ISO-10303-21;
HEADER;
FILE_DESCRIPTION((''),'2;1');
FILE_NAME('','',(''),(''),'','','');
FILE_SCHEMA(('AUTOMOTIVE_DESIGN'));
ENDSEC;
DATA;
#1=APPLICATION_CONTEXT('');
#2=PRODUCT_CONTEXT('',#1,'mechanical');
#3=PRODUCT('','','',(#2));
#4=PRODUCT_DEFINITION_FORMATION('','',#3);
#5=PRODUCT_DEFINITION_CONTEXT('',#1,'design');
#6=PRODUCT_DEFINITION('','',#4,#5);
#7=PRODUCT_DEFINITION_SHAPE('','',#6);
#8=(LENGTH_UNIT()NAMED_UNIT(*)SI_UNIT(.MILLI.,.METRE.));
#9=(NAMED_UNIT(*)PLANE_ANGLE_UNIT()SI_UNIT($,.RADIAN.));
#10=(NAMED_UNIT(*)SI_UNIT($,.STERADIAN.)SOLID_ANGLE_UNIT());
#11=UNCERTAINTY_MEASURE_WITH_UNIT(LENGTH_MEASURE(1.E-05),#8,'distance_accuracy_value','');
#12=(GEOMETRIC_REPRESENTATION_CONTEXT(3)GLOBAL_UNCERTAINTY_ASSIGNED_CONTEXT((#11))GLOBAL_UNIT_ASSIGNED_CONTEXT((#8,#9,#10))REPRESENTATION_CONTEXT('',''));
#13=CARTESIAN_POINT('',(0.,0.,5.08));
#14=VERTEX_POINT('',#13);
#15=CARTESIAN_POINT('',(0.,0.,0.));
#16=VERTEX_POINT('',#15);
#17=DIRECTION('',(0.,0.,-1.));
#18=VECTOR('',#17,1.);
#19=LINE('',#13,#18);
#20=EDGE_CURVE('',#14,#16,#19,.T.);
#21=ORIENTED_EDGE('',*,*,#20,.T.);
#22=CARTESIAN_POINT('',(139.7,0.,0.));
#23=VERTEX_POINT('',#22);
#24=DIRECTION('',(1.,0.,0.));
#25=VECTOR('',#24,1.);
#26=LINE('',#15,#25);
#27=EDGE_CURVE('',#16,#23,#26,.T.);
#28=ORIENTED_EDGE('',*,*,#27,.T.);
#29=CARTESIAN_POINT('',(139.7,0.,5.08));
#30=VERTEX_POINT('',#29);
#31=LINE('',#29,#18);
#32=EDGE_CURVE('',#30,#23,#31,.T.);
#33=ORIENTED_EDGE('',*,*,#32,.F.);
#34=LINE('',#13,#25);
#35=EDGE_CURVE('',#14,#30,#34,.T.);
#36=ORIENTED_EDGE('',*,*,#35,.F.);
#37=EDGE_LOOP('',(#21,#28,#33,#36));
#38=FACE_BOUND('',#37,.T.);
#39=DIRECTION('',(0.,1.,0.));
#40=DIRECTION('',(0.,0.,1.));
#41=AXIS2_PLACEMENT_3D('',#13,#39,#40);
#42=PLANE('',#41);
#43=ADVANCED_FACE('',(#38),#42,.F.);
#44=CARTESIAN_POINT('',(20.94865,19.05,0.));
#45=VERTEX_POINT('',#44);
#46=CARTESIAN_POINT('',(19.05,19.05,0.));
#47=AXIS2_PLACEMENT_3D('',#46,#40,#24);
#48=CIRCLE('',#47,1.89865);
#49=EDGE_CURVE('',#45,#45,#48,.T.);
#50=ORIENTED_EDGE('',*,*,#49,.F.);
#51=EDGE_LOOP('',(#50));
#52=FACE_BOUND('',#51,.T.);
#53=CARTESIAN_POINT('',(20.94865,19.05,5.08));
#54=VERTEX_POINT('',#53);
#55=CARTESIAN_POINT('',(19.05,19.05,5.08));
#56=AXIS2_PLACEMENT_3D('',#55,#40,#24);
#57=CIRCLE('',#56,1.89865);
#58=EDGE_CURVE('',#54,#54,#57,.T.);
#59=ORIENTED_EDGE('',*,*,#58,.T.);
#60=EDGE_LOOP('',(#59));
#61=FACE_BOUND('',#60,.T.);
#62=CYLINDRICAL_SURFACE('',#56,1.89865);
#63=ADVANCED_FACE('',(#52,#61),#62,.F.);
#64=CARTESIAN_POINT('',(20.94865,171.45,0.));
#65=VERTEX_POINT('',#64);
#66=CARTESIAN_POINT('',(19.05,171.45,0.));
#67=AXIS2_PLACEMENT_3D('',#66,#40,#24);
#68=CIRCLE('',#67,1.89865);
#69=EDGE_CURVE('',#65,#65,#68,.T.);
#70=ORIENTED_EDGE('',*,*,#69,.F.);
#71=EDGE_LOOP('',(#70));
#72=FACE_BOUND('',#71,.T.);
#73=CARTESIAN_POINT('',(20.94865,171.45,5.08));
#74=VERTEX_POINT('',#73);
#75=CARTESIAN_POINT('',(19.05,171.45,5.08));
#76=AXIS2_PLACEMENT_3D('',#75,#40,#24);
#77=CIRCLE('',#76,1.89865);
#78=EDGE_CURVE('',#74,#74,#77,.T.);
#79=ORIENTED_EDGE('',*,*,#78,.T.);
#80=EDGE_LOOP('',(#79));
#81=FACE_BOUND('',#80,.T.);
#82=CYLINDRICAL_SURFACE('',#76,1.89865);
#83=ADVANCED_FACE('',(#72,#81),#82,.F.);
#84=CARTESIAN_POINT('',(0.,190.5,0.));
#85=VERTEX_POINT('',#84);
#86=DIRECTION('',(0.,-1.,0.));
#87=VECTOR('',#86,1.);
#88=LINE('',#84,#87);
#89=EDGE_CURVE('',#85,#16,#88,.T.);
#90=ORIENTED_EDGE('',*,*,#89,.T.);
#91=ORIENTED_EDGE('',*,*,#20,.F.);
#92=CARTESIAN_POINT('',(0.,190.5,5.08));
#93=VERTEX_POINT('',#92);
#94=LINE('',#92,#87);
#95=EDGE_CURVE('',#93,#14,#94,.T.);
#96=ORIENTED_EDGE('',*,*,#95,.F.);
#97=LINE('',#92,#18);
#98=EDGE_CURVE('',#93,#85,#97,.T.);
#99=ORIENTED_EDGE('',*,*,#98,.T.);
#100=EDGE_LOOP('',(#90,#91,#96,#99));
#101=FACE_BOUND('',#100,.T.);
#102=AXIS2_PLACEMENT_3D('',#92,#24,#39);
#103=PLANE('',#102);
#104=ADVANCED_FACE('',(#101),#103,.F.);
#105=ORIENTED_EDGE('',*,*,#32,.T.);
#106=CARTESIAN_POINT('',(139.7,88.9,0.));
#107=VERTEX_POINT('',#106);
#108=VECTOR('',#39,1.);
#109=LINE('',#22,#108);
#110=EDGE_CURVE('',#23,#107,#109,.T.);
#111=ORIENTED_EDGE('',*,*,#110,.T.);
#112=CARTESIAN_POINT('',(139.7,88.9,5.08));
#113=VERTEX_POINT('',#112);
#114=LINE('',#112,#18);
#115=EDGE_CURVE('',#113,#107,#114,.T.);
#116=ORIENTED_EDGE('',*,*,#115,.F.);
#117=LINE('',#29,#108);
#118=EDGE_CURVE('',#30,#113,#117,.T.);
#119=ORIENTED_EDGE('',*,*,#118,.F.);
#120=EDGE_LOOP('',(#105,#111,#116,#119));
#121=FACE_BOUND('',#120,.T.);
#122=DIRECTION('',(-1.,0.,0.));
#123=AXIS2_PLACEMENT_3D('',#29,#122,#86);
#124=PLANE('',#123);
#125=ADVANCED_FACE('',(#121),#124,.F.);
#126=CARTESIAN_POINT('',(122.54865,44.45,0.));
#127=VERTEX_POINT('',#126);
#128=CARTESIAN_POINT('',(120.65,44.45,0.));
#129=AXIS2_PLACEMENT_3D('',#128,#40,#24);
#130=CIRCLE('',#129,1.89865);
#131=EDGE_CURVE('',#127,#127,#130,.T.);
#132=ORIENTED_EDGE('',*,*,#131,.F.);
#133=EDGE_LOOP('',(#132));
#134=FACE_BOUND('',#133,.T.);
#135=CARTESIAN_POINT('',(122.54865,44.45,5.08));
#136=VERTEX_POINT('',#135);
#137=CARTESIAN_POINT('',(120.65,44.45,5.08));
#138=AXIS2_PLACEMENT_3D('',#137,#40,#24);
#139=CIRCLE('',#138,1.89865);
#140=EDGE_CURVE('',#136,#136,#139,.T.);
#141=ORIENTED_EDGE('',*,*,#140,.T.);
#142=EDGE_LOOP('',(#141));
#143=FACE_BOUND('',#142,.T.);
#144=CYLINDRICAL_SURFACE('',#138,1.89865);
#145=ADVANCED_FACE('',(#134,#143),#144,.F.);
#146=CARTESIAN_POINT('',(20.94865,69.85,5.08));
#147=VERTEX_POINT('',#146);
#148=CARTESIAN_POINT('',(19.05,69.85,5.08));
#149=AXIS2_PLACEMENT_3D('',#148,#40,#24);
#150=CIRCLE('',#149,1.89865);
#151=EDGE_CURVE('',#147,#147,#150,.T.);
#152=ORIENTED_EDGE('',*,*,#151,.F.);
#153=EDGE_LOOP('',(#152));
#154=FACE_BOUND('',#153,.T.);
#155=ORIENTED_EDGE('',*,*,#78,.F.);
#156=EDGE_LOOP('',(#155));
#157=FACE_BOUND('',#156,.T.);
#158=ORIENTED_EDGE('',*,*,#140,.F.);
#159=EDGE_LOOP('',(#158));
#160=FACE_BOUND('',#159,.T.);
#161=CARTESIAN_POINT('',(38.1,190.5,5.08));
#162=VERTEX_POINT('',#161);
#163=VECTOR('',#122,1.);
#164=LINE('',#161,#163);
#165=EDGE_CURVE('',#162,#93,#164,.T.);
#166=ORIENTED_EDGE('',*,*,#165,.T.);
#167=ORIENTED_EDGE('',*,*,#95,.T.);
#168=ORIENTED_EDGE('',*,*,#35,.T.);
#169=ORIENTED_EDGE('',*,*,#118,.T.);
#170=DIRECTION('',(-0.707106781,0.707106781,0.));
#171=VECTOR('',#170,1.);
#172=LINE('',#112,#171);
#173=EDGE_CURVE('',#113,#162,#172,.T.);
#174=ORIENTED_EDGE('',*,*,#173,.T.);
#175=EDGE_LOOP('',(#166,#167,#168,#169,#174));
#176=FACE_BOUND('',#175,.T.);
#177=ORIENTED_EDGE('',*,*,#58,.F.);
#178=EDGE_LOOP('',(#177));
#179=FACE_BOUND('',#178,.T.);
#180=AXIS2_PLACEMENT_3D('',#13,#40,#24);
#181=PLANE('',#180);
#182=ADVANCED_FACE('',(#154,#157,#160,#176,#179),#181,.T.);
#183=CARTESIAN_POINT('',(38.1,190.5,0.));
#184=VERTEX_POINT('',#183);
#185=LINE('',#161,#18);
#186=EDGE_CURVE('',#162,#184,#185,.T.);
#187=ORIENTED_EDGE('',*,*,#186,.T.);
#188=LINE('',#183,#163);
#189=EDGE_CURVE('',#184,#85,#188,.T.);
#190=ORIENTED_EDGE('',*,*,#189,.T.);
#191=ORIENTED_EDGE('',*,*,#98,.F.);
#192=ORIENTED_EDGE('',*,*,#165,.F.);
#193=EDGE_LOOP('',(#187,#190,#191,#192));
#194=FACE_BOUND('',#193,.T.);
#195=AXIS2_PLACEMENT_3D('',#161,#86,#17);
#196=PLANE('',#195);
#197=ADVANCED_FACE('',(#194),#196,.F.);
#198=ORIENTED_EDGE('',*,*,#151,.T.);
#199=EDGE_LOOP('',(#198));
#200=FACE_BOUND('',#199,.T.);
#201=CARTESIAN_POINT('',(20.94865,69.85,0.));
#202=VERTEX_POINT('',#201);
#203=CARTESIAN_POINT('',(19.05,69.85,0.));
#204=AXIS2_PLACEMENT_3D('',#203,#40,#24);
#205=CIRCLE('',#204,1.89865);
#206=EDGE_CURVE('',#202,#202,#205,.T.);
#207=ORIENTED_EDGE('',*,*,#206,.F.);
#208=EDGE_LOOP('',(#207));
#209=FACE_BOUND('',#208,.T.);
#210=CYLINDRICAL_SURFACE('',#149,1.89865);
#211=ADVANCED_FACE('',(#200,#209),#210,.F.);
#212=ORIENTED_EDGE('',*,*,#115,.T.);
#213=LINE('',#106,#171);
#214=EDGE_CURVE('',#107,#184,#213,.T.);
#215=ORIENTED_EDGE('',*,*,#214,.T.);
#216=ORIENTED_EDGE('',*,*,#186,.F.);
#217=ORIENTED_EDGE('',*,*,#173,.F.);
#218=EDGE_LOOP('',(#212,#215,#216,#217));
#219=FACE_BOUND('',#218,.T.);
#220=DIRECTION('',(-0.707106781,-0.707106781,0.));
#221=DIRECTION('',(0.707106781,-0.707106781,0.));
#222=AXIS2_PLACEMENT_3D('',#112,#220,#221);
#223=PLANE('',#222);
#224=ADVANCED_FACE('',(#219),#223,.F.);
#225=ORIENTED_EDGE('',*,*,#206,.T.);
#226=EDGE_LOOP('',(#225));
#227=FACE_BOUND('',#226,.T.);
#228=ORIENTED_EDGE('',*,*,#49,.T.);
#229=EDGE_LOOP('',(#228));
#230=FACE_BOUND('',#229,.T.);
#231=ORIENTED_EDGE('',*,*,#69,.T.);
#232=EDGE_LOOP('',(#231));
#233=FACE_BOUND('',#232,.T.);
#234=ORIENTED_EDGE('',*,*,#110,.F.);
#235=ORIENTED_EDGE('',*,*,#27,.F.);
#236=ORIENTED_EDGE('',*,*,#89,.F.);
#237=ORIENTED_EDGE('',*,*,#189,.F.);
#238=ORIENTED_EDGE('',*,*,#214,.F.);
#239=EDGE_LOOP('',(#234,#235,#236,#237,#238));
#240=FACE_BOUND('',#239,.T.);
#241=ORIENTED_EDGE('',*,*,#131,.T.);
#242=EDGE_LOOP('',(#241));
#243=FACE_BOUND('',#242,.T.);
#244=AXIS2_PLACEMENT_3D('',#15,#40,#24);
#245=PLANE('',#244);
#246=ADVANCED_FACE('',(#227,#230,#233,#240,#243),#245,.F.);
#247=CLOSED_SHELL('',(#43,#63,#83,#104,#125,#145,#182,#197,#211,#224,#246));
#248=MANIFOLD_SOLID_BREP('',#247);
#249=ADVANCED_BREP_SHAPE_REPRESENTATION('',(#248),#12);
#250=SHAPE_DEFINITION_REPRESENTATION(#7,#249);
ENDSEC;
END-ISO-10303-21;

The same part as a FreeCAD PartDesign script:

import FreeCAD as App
import Part
import Sketcher
Q = App.Units.Quantity

doc = App.newDocument("Part")
body = doc.addObject("PartDesign::Body", "Body")

sketch1 = doc.addObject("Sketcher::SketchObject", "Sketch")
body.addObject(sketch1)
sketch1.AttachmentSupport = (doc.XY_Plane, [""])
sketch1.MapMode = "FlatFace"
sketch1.addGeometry([
    Part.LineSegment(App.Vector(0, 0, 0), App.Vector(140, 0, 0)),
    Part.LineSegment(App.Vector(140, 0, 0), App.Vector(140, 89, 0)),
    Part.LineSegment(App.Vector(140, 89, 0), App.Vector(38, 190, 0)),
    Part.LineSegment(App.Vector(38, 190, 0), App.Vector(0, 190, 0)),
    Part.LineSegment(App.Vector(0, 190, 0), App.Vector(0, 0, 0)),
], False)
sketch1.addConstraint([
    Sketcher.Constraint("Coincident", 0, 2, 1, 1),
    Sketcher.Constraint("Coincident", 1, 2, 2, 1),
    Sketcher.Constraint("Coincident", 2, 2, 3, 1),
    Sketcher.Constraint("Coincident", 3, 2, 4, 1),
    Sketcher.Constraint("Coincident", 4, 2, 0, 1),
    Sketcher.Constraint("Horizontal", 0),
    Sketcher.Constraint("Vertical", 1),
    Sketcher.Constraint("Horizontal", 3),
    Sketcher.Constraint("Vertical", 4),
    Sketcher.Constraint("Coincident", 4, 2, -1, 1),
    Sketcher.Constraint("DistanceX", 0, 1, 0, 2, Q("5.5 in")),
    Sketcher.Constraint("DistanceX", 3, 2, 3, 1, Q("1.5 in")),
    Sketcher.Constraint("DistanceY", 1, 1, 1, 2, Q("3.5 in")),
    Sketcher.Constraint("DistanceY", 4, 2, 4, 1, Q("7.5 in")),
])
pad1 = doc.addObject("PartDesign::Pad", "Pad")
body.addObject(pad1)
pad1.Profile = sketch1
pad1.Length = Q("0.2 in")

sketch2 = doc.addObject("Sketcher::SketchObject", "Sketch001")
body.addObject(sketch2)
sketch2.AttachmentSupport = (doc.XY_Plane, [""])
sketch2.MapMode = "FlatFace"
sketch2.AttachmentOffset = App.Placement(App.Vector(0, 0, 0.2 * 25.4), App.Rotation())
sketch2.addGeometry([
    Part.Circle(App.Vector(120.7, 44.5, 0), App.Vector(0, 0, 1), 1.9),
    Part.Circle(App.Vector(19.1, 171.4, 0), App.Vector(0, 0, 1), 1.9),
    Part.Circle(App.Vector(19.1, 19.1, 0), App.Vector(0, 0, 1), 1.9),
    Part.Circle(App.Vector(19.1, 69.8, 0), App.Vector(0, 0, 1), 1.9),
], False)
sketch2.addConstraint([
    Sketcher.Constraint("Equal", 0, 1),
    Sketcher.Constraint("Equal", 1, 2),
    Sketcher.Constraint("Equal", 2, 3),
    Sketcher.Constraint("Vertical", 1, 3, 2, 3),
    Sketcher.Constraint("Vertical", 2, 3, 3, 3),
    Sketcher.Constraint("DistanceX", 1, 3, 0, 3, Q("4 in")),
    Sketcher.Constraint("DistanceY", 0, 3, 1, 3, Q("5 in")),
    Sketcher.Constraint("DistanceY", 2, 3, 0, 3, Q("1 in")),
    Sketcher.Constraint("DistanceY", 2, 3, 3, 3, Q("2 in")),
    Sketcher.Constraint("Diameter", 0, Q("0.1495 in")),
    Sketcher.Constraint("DistanceX", -1, 1, 0, 3, Q("4.75 in")),
    Sketcher.Constraint("DistanceY", -1, 1, 0, 3, Q("1.75 in")),
])
doc.recompute()
hole = doc.addObject("PartDesign::Hole", "Hole")
body.addObject(hole)
hole.Profile = sketch2
hole.ThreadType = "None"
hole.Diameter = Q("0.1495 in")
hole.DepthType = "ThroughAll"

doc.recompute()
